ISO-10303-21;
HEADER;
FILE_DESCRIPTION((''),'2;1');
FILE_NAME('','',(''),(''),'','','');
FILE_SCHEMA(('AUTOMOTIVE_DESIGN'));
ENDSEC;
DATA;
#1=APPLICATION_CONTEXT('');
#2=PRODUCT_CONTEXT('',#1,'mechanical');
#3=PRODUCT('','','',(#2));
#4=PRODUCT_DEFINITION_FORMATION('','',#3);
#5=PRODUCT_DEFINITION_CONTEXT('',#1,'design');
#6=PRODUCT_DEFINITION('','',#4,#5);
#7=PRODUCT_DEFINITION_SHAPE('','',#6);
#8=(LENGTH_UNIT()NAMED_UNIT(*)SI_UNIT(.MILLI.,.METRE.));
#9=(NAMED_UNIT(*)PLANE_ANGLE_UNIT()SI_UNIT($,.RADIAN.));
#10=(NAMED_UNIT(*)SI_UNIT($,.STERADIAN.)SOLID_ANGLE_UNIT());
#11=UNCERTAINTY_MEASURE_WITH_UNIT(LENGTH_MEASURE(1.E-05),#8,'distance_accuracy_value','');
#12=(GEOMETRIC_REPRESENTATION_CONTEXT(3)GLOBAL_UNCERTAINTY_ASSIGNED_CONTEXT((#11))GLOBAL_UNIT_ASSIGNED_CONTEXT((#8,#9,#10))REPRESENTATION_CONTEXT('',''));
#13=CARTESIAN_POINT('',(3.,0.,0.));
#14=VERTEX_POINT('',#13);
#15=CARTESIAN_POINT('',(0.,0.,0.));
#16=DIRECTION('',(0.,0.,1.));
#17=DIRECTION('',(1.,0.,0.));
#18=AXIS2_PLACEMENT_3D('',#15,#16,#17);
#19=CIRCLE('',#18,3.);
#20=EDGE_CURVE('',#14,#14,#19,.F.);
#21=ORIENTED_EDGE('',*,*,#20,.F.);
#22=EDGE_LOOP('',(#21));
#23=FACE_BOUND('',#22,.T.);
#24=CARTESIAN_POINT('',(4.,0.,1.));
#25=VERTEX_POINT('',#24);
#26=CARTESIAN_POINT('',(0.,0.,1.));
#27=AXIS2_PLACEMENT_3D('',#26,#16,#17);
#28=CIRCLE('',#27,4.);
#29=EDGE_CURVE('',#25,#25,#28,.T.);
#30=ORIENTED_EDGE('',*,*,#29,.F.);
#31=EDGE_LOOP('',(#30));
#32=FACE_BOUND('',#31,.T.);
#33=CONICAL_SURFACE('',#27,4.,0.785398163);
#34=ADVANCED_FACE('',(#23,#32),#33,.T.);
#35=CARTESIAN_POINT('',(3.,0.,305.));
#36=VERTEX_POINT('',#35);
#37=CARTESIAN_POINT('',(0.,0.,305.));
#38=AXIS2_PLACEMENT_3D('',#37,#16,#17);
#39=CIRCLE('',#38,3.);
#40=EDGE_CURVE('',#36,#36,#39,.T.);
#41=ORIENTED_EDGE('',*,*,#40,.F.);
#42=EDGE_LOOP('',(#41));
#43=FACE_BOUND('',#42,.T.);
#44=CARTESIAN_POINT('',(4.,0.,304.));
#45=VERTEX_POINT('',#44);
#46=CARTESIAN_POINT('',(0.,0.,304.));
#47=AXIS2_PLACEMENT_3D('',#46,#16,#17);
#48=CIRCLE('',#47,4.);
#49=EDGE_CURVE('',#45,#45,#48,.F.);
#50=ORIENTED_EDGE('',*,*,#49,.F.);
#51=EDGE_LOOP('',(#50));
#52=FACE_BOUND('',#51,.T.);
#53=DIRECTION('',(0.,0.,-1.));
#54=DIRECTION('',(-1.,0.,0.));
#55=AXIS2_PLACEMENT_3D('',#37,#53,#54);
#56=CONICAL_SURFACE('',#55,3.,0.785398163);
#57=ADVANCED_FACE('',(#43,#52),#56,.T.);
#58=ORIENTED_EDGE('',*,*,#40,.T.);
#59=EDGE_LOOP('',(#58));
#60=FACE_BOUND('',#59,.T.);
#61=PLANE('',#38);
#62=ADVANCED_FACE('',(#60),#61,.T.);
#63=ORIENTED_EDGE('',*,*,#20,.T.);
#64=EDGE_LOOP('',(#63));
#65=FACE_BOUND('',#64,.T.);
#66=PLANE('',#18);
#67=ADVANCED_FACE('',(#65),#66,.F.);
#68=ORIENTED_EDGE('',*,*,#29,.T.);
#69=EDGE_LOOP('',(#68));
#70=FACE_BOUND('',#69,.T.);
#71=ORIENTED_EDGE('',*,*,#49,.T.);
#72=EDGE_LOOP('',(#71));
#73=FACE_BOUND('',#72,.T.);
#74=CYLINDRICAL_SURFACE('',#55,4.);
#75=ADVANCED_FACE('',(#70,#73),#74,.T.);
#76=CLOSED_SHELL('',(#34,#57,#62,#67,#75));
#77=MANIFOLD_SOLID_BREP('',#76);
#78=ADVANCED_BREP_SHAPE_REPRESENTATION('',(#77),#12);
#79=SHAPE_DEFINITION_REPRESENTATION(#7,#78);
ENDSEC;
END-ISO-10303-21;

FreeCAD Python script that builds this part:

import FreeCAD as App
import Part
import Sketcher
Q = App.Units.Quantity


def edges_at(feature, points):
    """Names of the edges that pass closest to the given points."""
    edges = feature.Shape.Edges
    near = lambda p: min(range(len(edges)), key=lambda i: edges[i].distToShape(Part.Vertex(*p))[0])
    return sorted({f"Edge{near(p) + 1}" for p in points})

doc = App.newDocument("Part")
body = doc.addObject("PartDesign::Body", "Body")

sketch1 = body.newObject("Sketcher::SketchObject", "Sketch")
sketch1.AttachmentSupport = (doc.getObject("XY_Plane"), [""])
sketch1.MapMode = "FlatFace"
sketch1.addGeometry(Part.Circle(App.Vector(0, 0, 0), App.Vector(0, 0, 1), 4), False)
sketch1.addConstraint(Sketcher.Constraint("Coincident", 0, 3, -1, 1))
sketch1.addConstraint(Sketcher.Constraint("Diameter", 0, Q("8 mm")))
pad1 = body.newObject("PartDesign::Pad", "Pad")
pad1.Profile = sketch1
pad1.Length = 305
doc.recompute()

chamfer = body.newObject("PartDesign::Chamfer", "Chamfer")
chamfer.Base = (pad1, edges_at(pad1, [(-4, 0, 0)]))
chamfer.Size = 1
doc.recompute()

chamfer2 = body.newObject("PartDesign::Chamfer", "Chamfer001")
chamfer2.Base = (chamfer, edges_at(chamfer, [(-4, 0, 305)]))
chamfer2.Size = 1

doc.recompute()
